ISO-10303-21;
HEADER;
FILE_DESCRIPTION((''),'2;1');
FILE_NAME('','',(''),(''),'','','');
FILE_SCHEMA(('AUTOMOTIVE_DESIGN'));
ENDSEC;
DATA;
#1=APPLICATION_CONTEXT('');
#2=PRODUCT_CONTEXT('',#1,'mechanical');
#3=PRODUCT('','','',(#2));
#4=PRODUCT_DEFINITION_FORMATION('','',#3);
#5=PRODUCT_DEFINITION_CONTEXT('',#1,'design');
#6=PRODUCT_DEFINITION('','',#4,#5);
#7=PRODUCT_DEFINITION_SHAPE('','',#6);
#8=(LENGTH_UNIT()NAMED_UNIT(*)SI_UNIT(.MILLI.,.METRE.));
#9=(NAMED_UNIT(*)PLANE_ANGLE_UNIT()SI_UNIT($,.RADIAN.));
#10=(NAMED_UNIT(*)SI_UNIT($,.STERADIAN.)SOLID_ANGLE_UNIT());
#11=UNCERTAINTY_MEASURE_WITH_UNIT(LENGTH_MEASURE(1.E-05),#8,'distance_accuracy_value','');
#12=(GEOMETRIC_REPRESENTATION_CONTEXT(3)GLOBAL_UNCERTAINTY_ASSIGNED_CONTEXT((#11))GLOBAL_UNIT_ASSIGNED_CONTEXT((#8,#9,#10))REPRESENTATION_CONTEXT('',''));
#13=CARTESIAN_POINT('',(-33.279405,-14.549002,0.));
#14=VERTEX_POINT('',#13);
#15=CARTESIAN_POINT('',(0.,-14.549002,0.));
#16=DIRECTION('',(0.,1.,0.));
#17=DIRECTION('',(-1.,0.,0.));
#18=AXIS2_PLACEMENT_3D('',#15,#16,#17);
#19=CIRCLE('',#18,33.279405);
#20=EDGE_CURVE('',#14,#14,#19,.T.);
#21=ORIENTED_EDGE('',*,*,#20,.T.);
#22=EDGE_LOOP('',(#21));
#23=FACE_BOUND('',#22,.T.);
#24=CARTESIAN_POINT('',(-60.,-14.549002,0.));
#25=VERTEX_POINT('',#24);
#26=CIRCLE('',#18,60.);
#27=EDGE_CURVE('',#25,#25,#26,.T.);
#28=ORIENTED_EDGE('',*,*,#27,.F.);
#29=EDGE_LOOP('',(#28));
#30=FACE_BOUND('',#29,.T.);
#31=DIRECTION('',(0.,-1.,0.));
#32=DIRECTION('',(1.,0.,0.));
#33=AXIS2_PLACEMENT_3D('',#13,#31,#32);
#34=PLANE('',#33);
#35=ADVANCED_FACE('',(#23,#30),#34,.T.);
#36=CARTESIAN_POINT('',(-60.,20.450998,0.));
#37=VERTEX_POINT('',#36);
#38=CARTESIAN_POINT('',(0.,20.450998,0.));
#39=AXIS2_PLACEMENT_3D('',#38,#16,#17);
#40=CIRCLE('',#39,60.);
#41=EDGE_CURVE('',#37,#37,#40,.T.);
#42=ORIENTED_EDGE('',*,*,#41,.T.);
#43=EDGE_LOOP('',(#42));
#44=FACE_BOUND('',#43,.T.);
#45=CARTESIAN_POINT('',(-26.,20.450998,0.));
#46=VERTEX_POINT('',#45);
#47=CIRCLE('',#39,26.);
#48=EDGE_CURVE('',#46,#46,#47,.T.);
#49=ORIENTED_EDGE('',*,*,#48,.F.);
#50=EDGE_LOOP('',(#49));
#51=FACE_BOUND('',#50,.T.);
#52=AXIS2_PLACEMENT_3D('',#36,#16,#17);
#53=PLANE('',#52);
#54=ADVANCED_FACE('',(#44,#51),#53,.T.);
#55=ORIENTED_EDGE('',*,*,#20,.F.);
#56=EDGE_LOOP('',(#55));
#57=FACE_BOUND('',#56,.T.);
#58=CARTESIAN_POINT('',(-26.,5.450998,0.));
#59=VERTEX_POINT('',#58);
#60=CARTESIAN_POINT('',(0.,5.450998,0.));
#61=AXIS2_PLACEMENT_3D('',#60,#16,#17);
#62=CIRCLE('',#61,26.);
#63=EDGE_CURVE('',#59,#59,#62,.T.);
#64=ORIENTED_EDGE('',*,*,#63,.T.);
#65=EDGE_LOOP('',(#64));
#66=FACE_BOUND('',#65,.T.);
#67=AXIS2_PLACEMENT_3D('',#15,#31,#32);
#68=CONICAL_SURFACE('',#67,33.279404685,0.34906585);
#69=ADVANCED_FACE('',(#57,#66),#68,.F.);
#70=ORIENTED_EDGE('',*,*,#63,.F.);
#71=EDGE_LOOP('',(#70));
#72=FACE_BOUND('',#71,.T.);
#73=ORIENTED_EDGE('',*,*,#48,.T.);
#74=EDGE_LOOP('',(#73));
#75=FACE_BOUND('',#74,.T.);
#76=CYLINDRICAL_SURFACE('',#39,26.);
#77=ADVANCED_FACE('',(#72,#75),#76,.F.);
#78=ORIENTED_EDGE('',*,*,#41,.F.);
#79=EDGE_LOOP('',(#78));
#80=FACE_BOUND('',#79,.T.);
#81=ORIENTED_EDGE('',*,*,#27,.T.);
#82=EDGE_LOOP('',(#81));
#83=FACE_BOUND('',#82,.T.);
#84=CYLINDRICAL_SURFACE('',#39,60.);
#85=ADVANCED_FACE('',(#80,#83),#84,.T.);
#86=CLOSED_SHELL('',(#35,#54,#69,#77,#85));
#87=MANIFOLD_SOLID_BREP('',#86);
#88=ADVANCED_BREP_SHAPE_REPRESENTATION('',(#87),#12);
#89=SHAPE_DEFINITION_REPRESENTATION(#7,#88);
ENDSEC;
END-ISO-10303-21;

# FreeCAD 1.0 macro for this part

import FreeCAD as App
import Part
import Sketcher
from FreeCAD import Vector
Q = App.Units.Quantity

doc = App.newDocument("Part")
params = doc.addObject("Spreadsheet::Sheet", "Params")
for row, (alias, value) in enumerate([
    ("sketch1_width", "34 mm"),
    ("sketch1_height", "35 mm"),
    ("sketch1_height2", "15 mm"),
    ("revolution_angle", "360 deg"),
], start=1):
    params.set(f"A{row}", alias)
    params.set(f"B{row}", "=" + value)
    params.setAlias(f"B{row}", alias)

body = doc.addObject("PartDesign::Body", "Body")

# Sketch on XY plane
sketch1 = body.newObject("Sketcher::SketchObject", "Sketch")
sketch1.AttachmentSupport = (doc.getObject("XY_Plane"), [""])
sketch1.MapMode = "FlatFace"
sketch1.addGeometry(Part.LineSegment(Vector(-60, 20.450998, 0), Vector(-60, -14.549002, 0)), False)
sketch1.addGeometry(Part.LineSegment(Vector(-60, -14.549002, 0), Vector(-33.279405, -14.549002, 0)), False)
sketch1.addGeometry(Part.LineSegment(Vector(-33.279405, -14.549002, 0), Vector(-26, 5.450998, 0)), False)
sketch1.addGeometry(Part.LineSegment(Vector(-26, 5.450998, 0), Vector(-26, 20.450998, 0)), False)
sketch1.addGeometry(Part.LineSegment(Vector(-26, 20.450998, 0), Vector(-60, 20.450998, 0)), False)
sketch1.addConstraint(Sketcher.Constraint("Coincident", 0, 2, 1, 1))
sketch1.addConstraint(Sketcher.Constraint("Coincident", 1, 2, 2, 1))
sketch1.addConstraint(Sketcher.Constraint("Coincident", 2, 2, 3, 1))
sketch1.addConstraint(Sketcher.Constraint("Coincident", 3, 2, 4, 1))
sketch1.addConstraint(Sketcher.Constraint("Coincident", 4, 2, 0, 1))
sketch1.addConstraint(Sketcher.Constraint("Vertical", 0))
sketch1.addConstraint(Sketcher.Constraint("Horizontal", 1))
sketch1.addConstraint(Sketcher.Constraint("Vertical", 3))
sketch1.addConstraint(Sketcher.Constraint("Horizontal", 4))
sketch1.addConstraint(Sketcher.Constraint("DistanceX", 4, 2, 4, 1, Q("34 mm")))
sketch1.addConstraint(Sketcher.Constraint("DistanceY", 0, 2, 0, 1, Q("35 mm")))
sketch1.addConstraint(Sketcher.Constraint("DistanceY", 3, 1, 3, 2, Q("15 mm")))
sketch1.addConstraint(Sketcher.Constraint("Angle", 2, Q("70 deg")))
sketch1.addConstraint(Sketcher.Constraint("DistanceX", 0, 2, -1, 1, Q("60 mm")))
sketch1.addConstraint(Sketcher.Constraint("DistanceY", 0, 2, -1, 1, Q("14.549002 mm")))
sketch1.setExpression("Constraints[9]", "Params.sketch1_width")
sketch1.setExpression("Constraints[10]", "Params.sketch1_height")
sketch1.setExpression("Constraints[11]", "Params.sketch1_height2")
revolution = body.newObject("PartDesign::Revolution", "Revolution")
revolution.Profile = sketch1
revolution.ReferenceAxis = (sketch1, ["V_Axis"])
revolution.setExpression("Angle", "Params.revolution_angle")

doc.recompute()
